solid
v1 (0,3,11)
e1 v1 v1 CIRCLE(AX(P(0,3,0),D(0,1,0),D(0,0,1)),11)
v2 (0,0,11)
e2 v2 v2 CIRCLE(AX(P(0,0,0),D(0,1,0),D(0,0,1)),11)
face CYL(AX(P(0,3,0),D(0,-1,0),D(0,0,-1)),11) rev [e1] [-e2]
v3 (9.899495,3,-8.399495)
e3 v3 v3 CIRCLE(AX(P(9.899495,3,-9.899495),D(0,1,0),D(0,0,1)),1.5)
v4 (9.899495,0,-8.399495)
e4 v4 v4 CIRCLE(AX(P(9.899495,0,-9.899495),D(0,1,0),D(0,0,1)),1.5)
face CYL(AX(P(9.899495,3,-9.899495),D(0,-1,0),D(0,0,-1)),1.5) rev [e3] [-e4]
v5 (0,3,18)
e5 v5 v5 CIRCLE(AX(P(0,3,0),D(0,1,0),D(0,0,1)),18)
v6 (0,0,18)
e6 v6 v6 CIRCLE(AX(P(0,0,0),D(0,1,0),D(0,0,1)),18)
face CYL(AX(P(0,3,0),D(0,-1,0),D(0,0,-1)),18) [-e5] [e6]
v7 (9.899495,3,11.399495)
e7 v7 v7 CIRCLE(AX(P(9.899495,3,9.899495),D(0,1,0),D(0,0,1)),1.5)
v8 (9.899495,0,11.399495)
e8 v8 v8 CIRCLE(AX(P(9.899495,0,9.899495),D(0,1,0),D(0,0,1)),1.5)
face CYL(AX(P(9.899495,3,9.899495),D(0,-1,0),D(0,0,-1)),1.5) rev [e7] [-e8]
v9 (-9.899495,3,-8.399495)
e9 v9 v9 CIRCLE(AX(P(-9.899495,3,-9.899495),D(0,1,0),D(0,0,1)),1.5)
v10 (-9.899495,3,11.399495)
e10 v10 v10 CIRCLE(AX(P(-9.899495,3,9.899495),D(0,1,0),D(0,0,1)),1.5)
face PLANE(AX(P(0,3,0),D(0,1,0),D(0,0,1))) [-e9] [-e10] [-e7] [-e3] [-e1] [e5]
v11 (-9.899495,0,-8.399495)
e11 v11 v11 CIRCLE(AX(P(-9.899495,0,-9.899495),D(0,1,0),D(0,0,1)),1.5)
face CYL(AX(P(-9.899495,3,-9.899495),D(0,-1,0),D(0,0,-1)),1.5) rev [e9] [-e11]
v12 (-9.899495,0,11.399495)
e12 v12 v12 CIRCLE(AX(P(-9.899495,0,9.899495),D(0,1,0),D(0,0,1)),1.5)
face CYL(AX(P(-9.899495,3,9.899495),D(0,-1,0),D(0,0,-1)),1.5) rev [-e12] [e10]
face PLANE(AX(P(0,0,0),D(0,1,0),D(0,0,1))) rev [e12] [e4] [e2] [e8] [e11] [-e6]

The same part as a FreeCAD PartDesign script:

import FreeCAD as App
import Part
import Sketcher
from FreeCAD import Vector
Q = App.Units.Quantity

doc = App.newDocument("Part")
params = doc.addObject("Spreadsheet::Sheet", "Params")
for row, (alias, value) in enumerate([
    ("sketch1_diameter", "36 mm"),
    ("sketch1_diameter2", "3 mm"),
    ("sketch1_diameter3", "22 mm"),
    ("pad1_length", "3 mm"),
], start=1):
    params.set(f"A{row}", alias)
    params.set(f"B{row}", "=" + value)
    params.setAlias(f"B{row}", alias)

body = doc.addObject("PartDesign::Body", "Body")

# Sketch on XZ plane
sketch1 = doc.addObject("Sketcher::SketchObject", "Sketch")
body.addObject(sketch1)
sketch1.AttachmentSupport = (doc.XZ_Plane, [""])
sketch1.MapMode = "FlatFace"
sketch1.addGeometry([
    Part.Circle(Vector(0, 0, 0), Vector(0, 0, 1), 18),  # 0
    Part.Circle(Vector(-9.9, 9.9, 0), Vector(0, 0, 1), 1.5),  # 1
    Part.Circle(Vector(9.9, 9.9, 0), Vector(0, 0, 1), 1.5),  # 2
    Part.Circle(Vector(-9.9, -9.9, 0), Vector(0, 0, 1), 1.5),  # 3
    Part.Circle(Vector(0, 0, 0), Vector(0, 0, 1), 11),  # 4
    Part.Circle(Vector(9.9, -9.9, 0), Vector(0, 0, 1), 1.5),  # 5
], False)
sketch1.addConstraint([
    Sketcher.Constraint("Coincident", 0, 3, -1, 1),
    Sketcher.Constraint("Coincident", 4, 3, -1, 1),
    Sketcher.Constraint("Equal", 1, 2),
    Sketcher.Constraint("Equal", 2, 3),
    Sketcher.Constraint("Equal", 3, 5),
    Sketcher.Constraint("Symmetric", 2, 3, 3, 3, -1, 1),
    Sketcher.Constraint("Symmetric", 1, 3, 5, 3, -1, 1),
    Sketcher.Constraint("Symmetric", 1, 3, 2, 3, -2),
    Sketcher.Constraint("Diameter", 0, Q("36 mm")),
    Sketcher.Constraint("Diameter", 1, Q("3 mm")),
    Sketcher.Constraint("Diameter", 4, Q("22 mm")),
    Sketcher.Constraint("DistanceX", 1, 3, 2, 3, Q("19.79899 mm")),
    Sketcher.Constraint("DistanceY", 3, 3, 1, 3, Q("19.79899 mm")),
])
sketch1.setExpression("Constraints[8]", "Params.sketch1_diameter")
sketch1.setExpression("Constraints[9]", "Params.sketch1_diameter2")
sketch1.setExpression("Constraints[10]", "Params.sketch1_diameter3")
pad1 = doc.addObject("PartDesign::Pad", "Pad")
body.addObject(pad1)
pad1.Profile = sketch1
pad1.setExpression("Length", "Params.pad1_length")
pad1.Reversed = True

doc.recompute()
